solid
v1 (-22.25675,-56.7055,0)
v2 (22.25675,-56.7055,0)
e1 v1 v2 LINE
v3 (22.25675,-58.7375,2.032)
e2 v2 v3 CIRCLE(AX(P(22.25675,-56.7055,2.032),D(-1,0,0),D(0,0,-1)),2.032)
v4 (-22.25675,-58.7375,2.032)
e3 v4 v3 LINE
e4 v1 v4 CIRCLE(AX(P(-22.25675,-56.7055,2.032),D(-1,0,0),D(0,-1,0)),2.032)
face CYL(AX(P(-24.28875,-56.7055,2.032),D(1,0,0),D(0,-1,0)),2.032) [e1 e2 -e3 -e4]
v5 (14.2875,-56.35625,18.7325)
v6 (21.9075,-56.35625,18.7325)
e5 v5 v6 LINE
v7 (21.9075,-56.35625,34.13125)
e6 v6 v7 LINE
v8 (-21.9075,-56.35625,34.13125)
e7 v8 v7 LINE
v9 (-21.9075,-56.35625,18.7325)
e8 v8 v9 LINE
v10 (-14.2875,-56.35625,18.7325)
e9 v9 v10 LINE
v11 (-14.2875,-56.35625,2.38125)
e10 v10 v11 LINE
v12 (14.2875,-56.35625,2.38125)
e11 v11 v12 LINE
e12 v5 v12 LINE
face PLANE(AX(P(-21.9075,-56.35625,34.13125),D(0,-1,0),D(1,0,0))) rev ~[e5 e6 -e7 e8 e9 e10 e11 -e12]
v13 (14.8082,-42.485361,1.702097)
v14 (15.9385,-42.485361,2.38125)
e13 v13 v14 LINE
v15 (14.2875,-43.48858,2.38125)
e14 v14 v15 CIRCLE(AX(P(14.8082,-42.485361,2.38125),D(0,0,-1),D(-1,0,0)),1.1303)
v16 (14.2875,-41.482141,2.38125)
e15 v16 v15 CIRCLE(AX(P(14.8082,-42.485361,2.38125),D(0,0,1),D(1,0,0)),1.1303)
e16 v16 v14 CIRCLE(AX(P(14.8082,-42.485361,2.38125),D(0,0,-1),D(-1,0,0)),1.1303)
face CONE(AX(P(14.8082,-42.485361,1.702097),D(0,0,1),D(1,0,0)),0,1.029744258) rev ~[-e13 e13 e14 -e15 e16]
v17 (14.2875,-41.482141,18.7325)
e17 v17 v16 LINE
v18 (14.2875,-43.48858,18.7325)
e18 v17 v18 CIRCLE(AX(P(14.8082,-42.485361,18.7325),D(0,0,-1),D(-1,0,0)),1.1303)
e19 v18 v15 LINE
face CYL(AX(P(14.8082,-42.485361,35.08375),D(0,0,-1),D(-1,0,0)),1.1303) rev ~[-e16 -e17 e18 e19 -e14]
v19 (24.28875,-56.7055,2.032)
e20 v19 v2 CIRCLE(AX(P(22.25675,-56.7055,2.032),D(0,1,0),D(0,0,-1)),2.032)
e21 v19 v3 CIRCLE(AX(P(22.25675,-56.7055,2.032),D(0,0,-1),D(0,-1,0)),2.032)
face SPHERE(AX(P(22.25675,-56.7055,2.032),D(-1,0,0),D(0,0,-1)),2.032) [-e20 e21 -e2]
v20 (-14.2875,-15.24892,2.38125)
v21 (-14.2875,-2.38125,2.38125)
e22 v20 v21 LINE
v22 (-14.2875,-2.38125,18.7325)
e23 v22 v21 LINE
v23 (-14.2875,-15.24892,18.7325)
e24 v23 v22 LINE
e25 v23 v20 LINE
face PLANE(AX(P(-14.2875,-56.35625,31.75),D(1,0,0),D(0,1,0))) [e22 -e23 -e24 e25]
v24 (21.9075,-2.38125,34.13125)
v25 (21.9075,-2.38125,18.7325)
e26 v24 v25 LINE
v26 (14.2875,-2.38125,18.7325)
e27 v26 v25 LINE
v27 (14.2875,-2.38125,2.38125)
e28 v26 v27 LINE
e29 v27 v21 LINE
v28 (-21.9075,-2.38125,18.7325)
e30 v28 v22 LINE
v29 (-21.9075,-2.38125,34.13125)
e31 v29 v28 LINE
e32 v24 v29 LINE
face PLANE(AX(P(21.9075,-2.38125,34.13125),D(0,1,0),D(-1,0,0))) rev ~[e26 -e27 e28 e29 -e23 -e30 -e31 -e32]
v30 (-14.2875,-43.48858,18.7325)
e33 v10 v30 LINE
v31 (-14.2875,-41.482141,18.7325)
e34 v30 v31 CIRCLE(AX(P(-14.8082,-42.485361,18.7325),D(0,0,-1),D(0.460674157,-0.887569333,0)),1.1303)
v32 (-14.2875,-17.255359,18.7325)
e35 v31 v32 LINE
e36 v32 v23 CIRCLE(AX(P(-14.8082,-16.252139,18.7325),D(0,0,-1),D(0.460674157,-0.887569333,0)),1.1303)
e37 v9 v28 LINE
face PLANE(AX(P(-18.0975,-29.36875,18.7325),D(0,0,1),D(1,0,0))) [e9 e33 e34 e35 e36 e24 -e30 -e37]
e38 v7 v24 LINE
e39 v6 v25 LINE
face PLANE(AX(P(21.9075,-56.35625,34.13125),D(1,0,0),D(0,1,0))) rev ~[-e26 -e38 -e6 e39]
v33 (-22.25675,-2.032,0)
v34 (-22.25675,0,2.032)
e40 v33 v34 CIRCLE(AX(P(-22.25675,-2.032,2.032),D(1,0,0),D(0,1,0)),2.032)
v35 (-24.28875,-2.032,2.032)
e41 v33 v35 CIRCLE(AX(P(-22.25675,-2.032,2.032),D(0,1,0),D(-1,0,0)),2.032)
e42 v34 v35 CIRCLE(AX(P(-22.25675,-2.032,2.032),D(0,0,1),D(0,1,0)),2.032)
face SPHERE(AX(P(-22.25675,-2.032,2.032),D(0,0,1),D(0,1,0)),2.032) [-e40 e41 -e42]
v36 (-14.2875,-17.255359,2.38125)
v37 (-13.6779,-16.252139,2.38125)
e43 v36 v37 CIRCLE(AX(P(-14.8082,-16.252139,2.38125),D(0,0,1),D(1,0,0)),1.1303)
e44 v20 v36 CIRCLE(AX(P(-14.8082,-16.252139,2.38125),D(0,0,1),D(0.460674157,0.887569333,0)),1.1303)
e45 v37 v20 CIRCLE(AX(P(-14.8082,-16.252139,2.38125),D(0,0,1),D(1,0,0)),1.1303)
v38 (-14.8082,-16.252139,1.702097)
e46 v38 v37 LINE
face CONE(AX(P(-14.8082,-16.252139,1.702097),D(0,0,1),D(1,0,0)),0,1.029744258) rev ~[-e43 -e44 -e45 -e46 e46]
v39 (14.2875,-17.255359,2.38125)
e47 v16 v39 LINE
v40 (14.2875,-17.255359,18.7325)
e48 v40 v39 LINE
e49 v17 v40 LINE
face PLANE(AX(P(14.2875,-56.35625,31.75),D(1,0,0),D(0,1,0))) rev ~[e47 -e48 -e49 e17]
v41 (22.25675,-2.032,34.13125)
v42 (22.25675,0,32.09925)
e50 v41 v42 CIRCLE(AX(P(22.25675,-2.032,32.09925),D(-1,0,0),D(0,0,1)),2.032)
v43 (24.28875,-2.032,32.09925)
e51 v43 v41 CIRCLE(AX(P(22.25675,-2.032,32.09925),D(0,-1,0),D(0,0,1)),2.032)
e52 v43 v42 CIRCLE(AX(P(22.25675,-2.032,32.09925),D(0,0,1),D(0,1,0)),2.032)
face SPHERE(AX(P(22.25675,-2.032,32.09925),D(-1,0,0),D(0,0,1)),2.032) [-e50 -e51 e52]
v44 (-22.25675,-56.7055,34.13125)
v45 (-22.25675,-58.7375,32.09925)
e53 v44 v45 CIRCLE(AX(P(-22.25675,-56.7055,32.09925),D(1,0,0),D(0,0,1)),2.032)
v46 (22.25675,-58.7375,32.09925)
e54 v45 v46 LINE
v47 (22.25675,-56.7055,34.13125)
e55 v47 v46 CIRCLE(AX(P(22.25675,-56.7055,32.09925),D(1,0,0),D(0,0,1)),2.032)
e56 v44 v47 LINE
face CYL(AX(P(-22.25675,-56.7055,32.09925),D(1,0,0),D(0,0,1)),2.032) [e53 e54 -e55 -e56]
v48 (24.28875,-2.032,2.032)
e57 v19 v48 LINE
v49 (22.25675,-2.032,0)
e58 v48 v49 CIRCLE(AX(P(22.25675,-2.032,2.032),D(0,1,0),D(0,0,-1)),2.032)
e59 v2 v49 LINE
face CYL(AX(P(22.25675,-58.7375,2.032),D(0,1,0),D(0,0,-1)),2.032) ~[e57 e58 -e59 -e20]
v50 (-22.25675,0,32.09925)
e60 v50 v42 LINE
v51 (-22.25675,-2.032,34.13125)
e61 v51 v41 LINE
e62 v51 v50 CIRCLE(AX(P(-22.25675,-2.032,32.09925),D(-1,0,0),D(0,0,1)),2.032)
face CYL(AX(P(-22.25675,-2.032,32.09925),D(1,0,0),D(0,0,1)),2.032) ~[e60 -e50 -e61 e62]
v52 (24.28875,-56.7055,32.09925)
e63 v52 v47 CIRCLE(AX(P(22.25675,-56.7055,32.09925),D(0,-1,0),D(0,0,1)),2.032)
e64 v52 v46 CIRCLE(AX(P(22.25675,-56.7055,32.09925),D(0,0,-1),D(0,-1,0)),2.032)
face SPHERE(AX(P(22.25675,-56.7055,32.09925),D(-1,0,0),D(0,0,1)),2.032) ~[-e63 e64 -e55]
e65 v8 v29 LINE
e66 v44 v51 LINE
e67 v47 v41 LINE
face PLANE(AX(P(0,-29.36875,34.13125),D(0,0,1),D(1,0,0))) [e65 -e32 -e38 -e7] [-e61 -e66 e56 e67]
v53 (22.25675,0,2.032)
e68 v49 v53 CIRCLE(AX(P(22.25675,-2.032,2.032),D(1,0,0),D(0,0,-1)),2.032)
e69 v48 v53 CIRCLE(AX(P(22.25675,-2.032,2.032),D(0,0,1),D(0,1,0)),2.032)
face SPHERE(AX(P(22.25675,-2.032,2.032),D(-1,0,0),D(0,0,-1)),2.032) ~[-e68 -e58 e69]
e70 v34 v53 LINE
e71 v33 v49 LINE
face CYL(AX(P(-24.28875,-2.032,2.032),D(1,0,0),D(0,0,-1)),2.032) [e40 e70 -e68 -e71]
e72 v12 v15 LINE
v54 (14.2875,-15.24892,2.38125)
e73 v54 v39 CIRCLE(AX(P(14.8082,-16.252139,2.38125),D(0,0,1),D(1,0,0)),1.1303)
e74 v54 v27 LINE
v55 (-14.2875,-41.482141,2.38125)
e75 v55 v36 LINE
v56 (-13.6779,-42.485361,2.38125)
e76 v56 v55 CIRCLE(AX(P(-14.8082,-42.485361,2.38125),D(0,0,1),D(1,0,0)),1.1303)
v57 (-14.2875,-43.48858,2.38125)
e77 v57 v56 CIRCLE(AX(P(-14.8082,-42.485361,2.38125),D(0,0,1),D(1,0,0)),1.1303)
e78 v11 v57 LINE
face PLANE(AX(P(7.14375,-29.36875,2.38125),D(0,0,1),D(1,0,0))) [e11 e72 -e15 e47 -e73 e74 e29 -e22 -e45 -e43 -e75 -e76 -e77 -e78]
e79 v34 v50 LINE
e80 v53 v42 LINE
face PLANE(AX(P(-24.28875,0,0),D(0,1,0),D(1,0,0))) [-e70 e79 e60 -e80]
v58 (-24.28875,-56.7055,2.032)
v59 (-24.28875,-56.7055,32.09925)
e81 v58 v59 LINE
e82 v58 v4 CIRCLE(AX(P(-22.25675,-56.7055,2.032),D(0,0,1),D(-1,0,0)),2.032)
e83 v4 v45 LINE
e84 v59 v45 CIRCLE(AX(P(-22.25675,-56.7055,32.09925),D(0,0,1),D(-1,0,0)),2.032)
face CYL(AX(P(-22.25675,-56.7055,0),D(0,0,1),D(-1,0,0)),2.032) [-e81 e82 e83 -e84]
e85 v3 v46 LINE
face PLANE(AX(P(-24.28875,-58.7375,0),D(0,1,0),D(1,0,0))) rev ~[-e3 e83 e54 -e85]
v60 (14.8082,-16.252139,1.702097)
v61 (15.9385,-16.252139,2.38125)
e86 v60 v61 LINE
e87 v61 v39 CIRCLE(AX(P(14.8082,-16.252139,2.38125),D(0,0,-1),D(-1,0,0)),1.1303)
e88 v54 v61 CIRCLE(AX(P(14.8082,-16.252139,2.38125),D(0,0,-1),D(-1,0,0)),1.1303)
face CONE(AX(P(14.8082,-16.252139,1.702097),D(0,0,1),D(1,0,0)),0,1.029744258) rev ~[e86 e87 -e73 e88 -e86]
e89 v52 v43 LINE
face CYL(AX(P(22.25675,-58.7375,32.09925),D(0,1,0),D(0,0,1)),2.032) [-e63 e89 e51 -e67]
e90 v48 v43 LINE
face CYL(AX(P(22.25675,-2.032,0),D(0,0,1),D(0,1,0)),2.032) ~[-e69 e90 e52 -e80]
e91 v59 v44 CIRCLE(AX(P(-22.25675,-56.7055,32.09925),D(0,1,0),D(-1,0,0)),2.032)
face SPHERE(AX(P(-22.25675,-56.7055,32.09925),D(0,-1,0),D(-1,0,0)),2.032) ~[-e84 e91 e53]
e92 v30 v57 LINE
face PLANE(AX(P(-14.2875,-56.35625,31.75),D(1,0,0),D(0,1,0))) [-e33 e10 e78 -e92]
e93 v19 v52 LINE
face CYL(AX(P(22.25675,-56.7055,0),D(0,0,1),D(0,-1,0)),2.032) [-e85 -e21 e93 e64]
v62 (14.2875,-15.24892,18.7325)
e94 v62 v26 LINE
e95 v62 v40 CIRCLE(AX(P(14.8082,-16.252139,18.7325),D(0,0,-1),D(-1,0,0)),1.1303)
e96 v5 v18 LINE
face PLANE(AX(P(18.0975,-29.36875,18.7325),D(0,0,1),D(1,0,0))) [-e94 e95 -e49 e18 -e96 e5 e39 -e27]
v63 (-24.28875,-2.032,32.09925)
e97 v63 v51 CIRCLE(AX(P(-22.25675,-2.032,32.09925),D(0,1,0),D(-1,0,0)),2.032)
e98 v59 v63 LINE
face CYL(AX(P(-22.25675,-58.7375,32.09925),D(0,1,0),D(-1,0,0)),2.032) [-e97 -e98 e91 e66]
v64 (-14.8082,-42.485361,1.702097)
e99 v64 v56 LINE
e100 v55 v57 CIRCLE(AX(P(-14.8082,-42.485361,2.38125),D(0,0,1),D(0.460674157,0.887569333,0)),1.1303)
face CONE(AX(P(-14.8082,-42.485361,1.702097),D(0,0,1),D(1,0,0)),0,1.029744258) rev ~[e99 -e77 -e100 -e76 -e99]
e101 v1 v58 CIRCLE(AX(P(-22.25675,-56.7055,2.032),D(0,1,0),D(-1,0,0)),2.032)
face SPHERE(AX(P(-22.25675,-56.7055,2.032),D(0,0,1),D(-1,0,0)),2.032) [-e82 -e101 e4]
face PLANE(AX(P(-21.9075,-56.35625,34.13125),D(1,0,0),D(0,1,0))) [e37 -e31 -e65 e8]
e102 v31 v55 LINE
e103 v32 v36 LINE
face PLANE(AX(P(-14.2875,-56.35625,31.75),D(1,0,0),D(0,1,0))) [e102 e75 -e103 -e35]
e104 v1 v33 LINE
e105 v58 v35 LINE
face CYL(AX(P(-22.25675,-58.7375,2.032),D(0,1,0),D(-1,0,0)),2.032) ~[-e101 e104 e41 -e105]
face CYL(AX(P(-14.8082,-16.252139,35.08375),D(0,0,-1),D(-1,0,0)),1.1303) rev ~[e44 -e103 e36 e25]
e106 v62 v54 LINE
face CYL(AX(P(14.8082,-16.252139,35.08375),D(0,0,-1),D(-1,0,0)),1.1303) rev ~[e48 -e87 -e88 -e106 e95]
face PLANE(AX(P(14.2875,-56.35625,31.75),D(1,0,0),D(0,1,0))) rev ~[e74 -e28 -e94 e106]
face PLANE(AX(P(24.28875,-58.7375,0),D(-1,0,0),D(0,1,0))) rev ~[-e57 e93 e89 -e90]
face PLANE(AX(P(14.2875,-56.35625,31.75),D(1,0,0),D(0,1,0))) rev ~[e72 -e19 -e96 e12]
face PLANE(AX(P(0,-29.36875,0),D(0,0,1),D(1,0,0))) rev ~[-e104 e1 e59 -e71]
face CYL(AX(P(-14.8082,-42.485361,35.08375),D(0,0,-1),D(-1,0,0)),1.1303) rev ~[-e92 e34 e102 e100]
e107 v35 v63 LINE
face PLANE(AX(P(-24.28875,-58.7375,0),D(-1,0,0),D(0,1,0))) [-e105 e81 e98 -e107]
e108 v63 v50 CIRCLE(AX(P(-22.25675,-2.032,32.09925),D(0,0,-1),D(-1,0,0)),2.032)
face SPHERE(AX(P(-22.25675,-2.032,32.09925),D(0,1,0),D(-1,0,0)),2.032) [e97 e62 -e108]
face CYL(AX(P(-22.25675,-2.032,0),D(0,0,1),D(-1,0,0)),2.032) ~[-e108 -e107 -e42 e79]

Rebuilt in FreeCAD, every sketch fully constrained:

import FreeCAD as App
import Part
import Sketcher

V = App.Vector
Q = App.Units.Quantity


def edges_at(feature, points):
    """Names of the edges that pass closest to the given points."""
    edges = feature.Shape.Edges
    near = lambda p: min(range(len(edges)), key=lambda i: edges[i].distToShape(Part.Vertex(*p))[0])
    return sorted({f"Edge{near(p) + 1}" for p in points})

doc = App.newDocument("Part")
body = doc.addObject("PartDesign::Body", "Body")

# Sketch on XY plane
sketch1 = body.newObject("Sketcher::SketchObject", "Sketch")
sketch1.AttachmentSupport = (doc.getObject("XY_Plane"), [""])
sketch1.MapMode = "FlatFace"
sketch1.addGeometry(Part.LineSegment(V(-24.28875, 0, 0), V(-24.28875, -58.7375, 0)), False)
sketch1.addGeometry(Part.LineSegment(V(-24.28875, -58.7375, 0), V(24.28875, -58.7375, 0)), False)
sketch1.addGeometry(Part.LineSegment(V(24.28875, -58.7375, 0), V(24.28875, 0, 0)), False)
sketch1.addGeometry(Part.LineSegment(V(24.28875, 0, 0), V(-24.28875, 0, 0)), False)
sketch1.addConstraint(Sketcher.Constraint("Coincident", 0, 2, 1, 1))
sketch1.addConstraint(Sketcher.Constraint("Coincident", 1, 2, 2, 1))
sketch1.addConstraint(Sketcher.Constraint("Coincident", 2, 2, 3, 1))
sketch1.addConstraint(Sketcher.Constraint("Coincident", 3, 2, 0, 1))
sketch1.addConstraint(Sketcher.Constraint("Vertical", 0))
sketch1.addConstraint(Sketcher.Constraint("Horizontal", 1))
sketch1.addConstraint(Sketcher.Constraint("Vertical", 2))
sketch1.addConstraint(Sketcher.Constraint("Horizontal", 3))
sketch1.addConstraint(Sketcher.Constraint("Symmetric", 2, 2, 3, 2, -1, 1))
sketch1.addConstraint(Sketcher.Constraint("DistanceY", 0, 2, 0, 1, Q("2.3125 in")))
sketch1.addConstraint(Sketcher.Constraint("DistanceX", 1, 1, 1, 2, Q("1.9125 in")))
pad1 = body.newObject("PartDesign::Pad", "Pad")
pad1.Profile = sketch1
pad1.Length = Q("1.34375 in")

# Sketch on XY plane
sketch2 = body.newObject("Sketcher::SketchObject", "Sketch001")
sketch2.AttachmentSupport = (doc.getObject("XY_Plane"), [""])
sketch2.MapMode = "FlatFace"
sketch2.AttachmentOffset = App.Placement(V(0, 0, 1.34375 * 25.4), App.Rotation())
sketch2.addGeometry(Part.LineSegment(V(21.9075, -56.35625, 0), V(21.9075, -2.38125, 0)), False)
sketch2.addGeometry(Part.LineSegment(V(21.9075, -2.38125, 0), V(-21.9075, -2.38125, 0)), False)
sketch2.addGeometry(Part.LineSegment(V(-21.9075, -2.38125, 0), V(-21.9075, -56.35625, 0)), False)
sketch2.addGeometry(Part.LineSegment(V(-21.9075, -56.35625, 0), V(21.9075, -56.35625, 0)), False)
sketch2.addConstraint(Sketcher.Constraint("Coincident", 0, 2, 1, 1))
sketch2.addConstraint(Sketcher.Constraint("Coincident", 1, 2, 2, 1))
sketch2.addConstraint(Sketcher.Constraint("Coincident", 2, 2, 3, 1))
sketch2.addConstraint(Sketcher.Constraint("Coincident", 3, 2, 0, 1))
sketch2.addConstraint(Sketcher.Constraint("Vertical", 0))
sketch2.addConstraint(Sketcher.Constraint("Horizontal", 1))
sketch2.addConstraint(Sketcher.Constraint("Vertical", 2))
sketch2.addConstraint(Sketcher.Constraint("Horizontal", 3))
sketch2.addConstraint(Sketcher.Constraint("DistanceX", 1, 2, 1, 1, Q("1.725 in")))
sketch2.addConstraint(Sketcher.Constraint("DistanceY", 0, 1, 0, 2, Q("2.125 in")))
sketch2.addConstraint(Sketcher.Constraint("DistanceY", 0, 2, -1, 1, Q("0.09375 in")))
sketch2.addConstraint(Sketcher.Constraint("DistanceX", -1, 1, 0, 2, Q("0.8625 in")))
pocket1 = body.newObject("PartDesign::Pocket", "Pocket")
pocket1.Profile = sketch2
pocket1.Length = Q("0.09375 in")

# Sketch on XY plane
sketch3 = body.newObject("Sketcher::SketchObject", "Sketch002")
sketch3.AttachmentSupport = (doc.getObject("XY_Plane"), [""])
sketch3.MapMode = "FlatFace"
sketch3.AttachmentOffset = App.Placement(V(0, 0, 1.25 * 25.4), App.Rotation())
sketch3.addGeometry(Part.LineSegment(V(14.2875, -56.35625, 0), V(14.2875, -2.38125, 0)), False)
sketch3.addGeometry(Part.LineSegment(V(14.2875, -2.38125, 0), V(-14.2875, -2.38125, 0)), False)
sketch3.addGeometry(Part.LineSegment(V(-14.2875, -2.38125, 0), V(-14.2875, -56.35625, 0)), False)
sketch3.addGeometry(Part.LineSegment(V(-14.2875, -56.35625, 0), V(14.2875, -56.35625, 0)), False)
sketch3.addConstraint(Sketcher.Constraint("Coincident", 0, 2, 1, 1))
sketch3.addConstraint(Sketcher.Constraint("Coincident", 1, 2, 2, 1))
sketch3.addConstraint(Sketcher.Constraint("Coincident", 2, 2, 3, 1))
sketch3.addConstraint(Sketcher.Constraint("Coincident", 3, 2, 0, 1))
sketch3.addConstraint(Sketcher.Constraint("Vertical", 0))
sketch3.addConstraint(Sketcher.Constraint("Horizontal", 1))
sketch3.addConstraint(Sketcher.Constraint("Vertical", 2))
sketch3.addConstraint(Sketcher.Constraint("Horizontal", 3))
sketch3.addConstraint(Sketcher.Constraint("DistanceX", 1, 2, 1, 1, Q("1.125 in")))
sketch3.addConstraint(Sketcher.Constraint("DistanceY", 0, 1, 0, 2, Q("2.125 in")))
sketch3.addConstraint(Sketcher.Constraint("DistanceX", -1, 1, 0, 2, Q("0.5625 in")))
sketch3.addConstraint(Sketcher.Constraint("DistanceY", 0, 2, -1, 1, Q("0.09375 in")))
pocket2 = body.newObject("PartDesign::Pocket", "Pocket001")
pocket2.Profile = sketch3
pocket2.Length = Q("1.15625 in")

# Sketch on XY plane
sketch4 = body.newObject("Sketcher::SketchObject", "Sketch003")
sketch4.AttachmentSupport = (doc.getObject("XY_Plane"), [""])
sketch4.MapMode = "FlatFace"
sketch4.AttachmentOffset = App.Placement(V(0, 0, 1.25 * 25.4), App.Rotation())
sketch4.addGeometry(Part.LineSegment(V(-21.9075, -2.38125, 0), V(-21.9075, -56.35625, 0)), False)
sketch4.addGeometry(Part.LineSegment(V(-21.9075, -56.35625, 0), V(-14.2875, -56.35625, 0)), False)
sketch4.addGeometry(Part.LineSegment(V(-14.2875, -56.35625, 0), V(-14.2875, -2.38125, 0)), False)
sketch4.addGeometry(Part.LineSegment(V(-14.2875, -2.38125, 0), V(-21.9075, -2.38125, 0)), False)
sketch4.addGeometry(Part.LineSegment(V(14.2875, -2.38125, 0), V(14.2875, -56.35625, 0)), False)
sketch4.addGeometry(Part.LineSegment(V(14.2875, -56.35625, 0), V(21.9075, -56.35625, 0)), False)
sketch4.addGeometry(Part.LineSegment(V(21.9075, -56.35625, 0), V(21.9075, -2.38125, 0)), False)
sketch4.addGeometry(Part.LineSegment(V(21.9075, -2.38125, 0), V(14.2875, -2.38125, 0)), False)
sketch4.addConstraint(Sketcher.Constraint("Coincident", 0, 2, 1, 1))
sketch4.addConstraint(Sketcher.Constraint("Coincident", 1, 2, 2, 1))
sketch4.addConstraint(Sketcher.Constraint("Coincident", 2, 2, 3, 1))
sketch4.addConstraint(Sketcher.Constraint("Coincident", 3, 2, 0, 1))
sketch4.addConstraint(Sketcher.Constraint("Coincident", 4, 2, 5, 1))
sketch4.addConstraint(Sketcher.Constraint("Coincident", 5, 2, 6, 1))
sketch4.addConstraint(Sketcher.Constraint("Coincident", 6, 2, 7, 1))
sketch4.addConstraint(Sketcher.Constraint("Coincident", 7, 2, 4, 1))
sketch4.addConstraint(Sketcher.Constraint("Vertical", 0))
sketch4.addConstraint(Sketcher.Constraint("Horizontal", 1))
sketch4.addConstraint(Sketcher.Constraint("Vertical", 2))
sketch4.addConstraint(Sketcher.Constraint("Horizontal", 3))
sketch4.addConstraint(Sketcher.Constraint("Vertical", 4))
sketch4.addConstraint(Sketcher.Constraint("Horizontal", 5))
sketch4.addConstraint(Sketcher.Constraint("Vertical", 6))
sketch4.addConstraint(Sketcher.Constraint("Horizontal", 7))
sketch4.addConstraint(Sketcher.Constraint("Symmetric", 1, 2, 4, 2, -2))
sketch4.addConstraint(Sketcher.Constraint("Symmetric", 3, 2, 6, 2, -2))
sketch4.addConstraint(Sketcher.Constraint("DistanceX", 1, 1, 1, 2, Q("0.3 in")))
sketch4.addConstraint(Sketcher.Constraint("DistanceY", 0, 2, 0, 1, Q("2.125 in")))
sketch4.addConstraint(Sketcher.Constraint("DistanceY", 0, 2, -1, 1, Q("2.21875 in")))
sketch4.addConstraint(Sketcher.Constraint("DistanceX", 1, 2, -1, 1, Q("0.5625 in")))
pocket3 = body.newObject("PartDesign::Pocket", "Pocket002")
pocket3.Profile = sketch4
pocket3.Length = Q("0.5125 in")

# Sketch on XY plane
sketch5 = body.newObject("Sketcher::SketchObject", "Sketch004")
sketch5.AttachmentSupport = (doc.getObject("XY_Plane"), [""])
sketch5.MapMode = "FlatFace"
sketch5.AttachmentOffset = App.Placement(V(0, 0, 0.7375 * 25.4), App.Rotation())
sketch5.addGeometry(Part.Circle(V(-14.8082, -16.252139, 0), V(0, 0, 1), 1.1303), False)
sketch5.addGeometry(Part.Circle(V(-14.8082, -42.485361, 0), V(0, 0, 1), 1.1303), False)
sketch5.addGeometry(Part.Circle(V(14.8082, -42.485361, 0), V(0, 0, 1), 1.1303), False)
sketch5.addGeometry(Part.Circle(V(14.8082, -16.252139, 0), V(0, 0, 1), 1.1303), False)
sketch5.addConstraint(Sketcher.Constraint("Equal", 0, 1))
sketch5.addConstraint(Sketcher.Constraint("Equal", 1, 2))
sketch5.addConstraint(Sketcher.Constraint("Equal", 2, 3))
sketch5.addConstraint(Sketcher.Constraint("Symmetric", 1, 3, 2, 3, -2))
sketch5.addConstraint(Sketcher.Constraint("Symmetric", 0, 3, 3, 3, -2))
sketch5.addConstraint(Sketcher.Constraint("Vertical", 0, 3, 1, 3))
sketch5.addConstraint(Sketcher.Constraint("Diameter", 0, Q("0.089 in")))
sketch5.addConstraint(Sketcher.Constraint("DistanceX", 0, 3, -1, 1, Q("0.583 in")))
sketch5.addConstraint(Sketcher.Constraint("DistanceY", 0, 3, -1, 1, Q("16.252139 mm")))
sketch5.addConstraint(Sketcher.Constraint("DistanceY", 1, 3, -1, 1, Q("42.485361 mm")))
doc.recompute()
hole = body.newObject("PartDesign::Hole", "Hole")
hole.Profile = sketch5
hole.ThreadType = "None"
hole.Diameter = Q("0.089 in")
hole.DepthType = "Dimension"
hole.Depth = 16.35125
hole.DrillPoint = "Angled"
hole.DrillPointAngle = 118
doc.recompute()

fillet = body.newObject("PartDesign::Fillet", "Fillet")
fillet.Base = (hole, edges_at(hole, [(-24.289, -29.369, 34.131)]))
fillet.Radius = Q("0.08 in")
doc.recompute()

fillet2 = body.newObject("PartDesign::Fillet", "Fillet001")
fillet2.Base = (fillet, edges_at(fillet, [
    (-24.289, -58.737, 16.05),
    (-23.694, -58.737, 33.536),
    (-24.289, 0, 16.05),
    (-23.694, 0, 33.536),
    (1.016, 0, 34.131),
    (24.289, -29.369, 34.131),
    (0, 0, 0),
    (-24.289, -29.369, 0),
    (0, -58.737, 0),
    (24.289, -29.369, 0),
    (1.016, -58.737, 34.131),
    (24.289, 0, 17.066),
    (24.289, -58.737, 17.066),
]))
fillet2.Radius = Q("0.08 in")

doc.recompute()
